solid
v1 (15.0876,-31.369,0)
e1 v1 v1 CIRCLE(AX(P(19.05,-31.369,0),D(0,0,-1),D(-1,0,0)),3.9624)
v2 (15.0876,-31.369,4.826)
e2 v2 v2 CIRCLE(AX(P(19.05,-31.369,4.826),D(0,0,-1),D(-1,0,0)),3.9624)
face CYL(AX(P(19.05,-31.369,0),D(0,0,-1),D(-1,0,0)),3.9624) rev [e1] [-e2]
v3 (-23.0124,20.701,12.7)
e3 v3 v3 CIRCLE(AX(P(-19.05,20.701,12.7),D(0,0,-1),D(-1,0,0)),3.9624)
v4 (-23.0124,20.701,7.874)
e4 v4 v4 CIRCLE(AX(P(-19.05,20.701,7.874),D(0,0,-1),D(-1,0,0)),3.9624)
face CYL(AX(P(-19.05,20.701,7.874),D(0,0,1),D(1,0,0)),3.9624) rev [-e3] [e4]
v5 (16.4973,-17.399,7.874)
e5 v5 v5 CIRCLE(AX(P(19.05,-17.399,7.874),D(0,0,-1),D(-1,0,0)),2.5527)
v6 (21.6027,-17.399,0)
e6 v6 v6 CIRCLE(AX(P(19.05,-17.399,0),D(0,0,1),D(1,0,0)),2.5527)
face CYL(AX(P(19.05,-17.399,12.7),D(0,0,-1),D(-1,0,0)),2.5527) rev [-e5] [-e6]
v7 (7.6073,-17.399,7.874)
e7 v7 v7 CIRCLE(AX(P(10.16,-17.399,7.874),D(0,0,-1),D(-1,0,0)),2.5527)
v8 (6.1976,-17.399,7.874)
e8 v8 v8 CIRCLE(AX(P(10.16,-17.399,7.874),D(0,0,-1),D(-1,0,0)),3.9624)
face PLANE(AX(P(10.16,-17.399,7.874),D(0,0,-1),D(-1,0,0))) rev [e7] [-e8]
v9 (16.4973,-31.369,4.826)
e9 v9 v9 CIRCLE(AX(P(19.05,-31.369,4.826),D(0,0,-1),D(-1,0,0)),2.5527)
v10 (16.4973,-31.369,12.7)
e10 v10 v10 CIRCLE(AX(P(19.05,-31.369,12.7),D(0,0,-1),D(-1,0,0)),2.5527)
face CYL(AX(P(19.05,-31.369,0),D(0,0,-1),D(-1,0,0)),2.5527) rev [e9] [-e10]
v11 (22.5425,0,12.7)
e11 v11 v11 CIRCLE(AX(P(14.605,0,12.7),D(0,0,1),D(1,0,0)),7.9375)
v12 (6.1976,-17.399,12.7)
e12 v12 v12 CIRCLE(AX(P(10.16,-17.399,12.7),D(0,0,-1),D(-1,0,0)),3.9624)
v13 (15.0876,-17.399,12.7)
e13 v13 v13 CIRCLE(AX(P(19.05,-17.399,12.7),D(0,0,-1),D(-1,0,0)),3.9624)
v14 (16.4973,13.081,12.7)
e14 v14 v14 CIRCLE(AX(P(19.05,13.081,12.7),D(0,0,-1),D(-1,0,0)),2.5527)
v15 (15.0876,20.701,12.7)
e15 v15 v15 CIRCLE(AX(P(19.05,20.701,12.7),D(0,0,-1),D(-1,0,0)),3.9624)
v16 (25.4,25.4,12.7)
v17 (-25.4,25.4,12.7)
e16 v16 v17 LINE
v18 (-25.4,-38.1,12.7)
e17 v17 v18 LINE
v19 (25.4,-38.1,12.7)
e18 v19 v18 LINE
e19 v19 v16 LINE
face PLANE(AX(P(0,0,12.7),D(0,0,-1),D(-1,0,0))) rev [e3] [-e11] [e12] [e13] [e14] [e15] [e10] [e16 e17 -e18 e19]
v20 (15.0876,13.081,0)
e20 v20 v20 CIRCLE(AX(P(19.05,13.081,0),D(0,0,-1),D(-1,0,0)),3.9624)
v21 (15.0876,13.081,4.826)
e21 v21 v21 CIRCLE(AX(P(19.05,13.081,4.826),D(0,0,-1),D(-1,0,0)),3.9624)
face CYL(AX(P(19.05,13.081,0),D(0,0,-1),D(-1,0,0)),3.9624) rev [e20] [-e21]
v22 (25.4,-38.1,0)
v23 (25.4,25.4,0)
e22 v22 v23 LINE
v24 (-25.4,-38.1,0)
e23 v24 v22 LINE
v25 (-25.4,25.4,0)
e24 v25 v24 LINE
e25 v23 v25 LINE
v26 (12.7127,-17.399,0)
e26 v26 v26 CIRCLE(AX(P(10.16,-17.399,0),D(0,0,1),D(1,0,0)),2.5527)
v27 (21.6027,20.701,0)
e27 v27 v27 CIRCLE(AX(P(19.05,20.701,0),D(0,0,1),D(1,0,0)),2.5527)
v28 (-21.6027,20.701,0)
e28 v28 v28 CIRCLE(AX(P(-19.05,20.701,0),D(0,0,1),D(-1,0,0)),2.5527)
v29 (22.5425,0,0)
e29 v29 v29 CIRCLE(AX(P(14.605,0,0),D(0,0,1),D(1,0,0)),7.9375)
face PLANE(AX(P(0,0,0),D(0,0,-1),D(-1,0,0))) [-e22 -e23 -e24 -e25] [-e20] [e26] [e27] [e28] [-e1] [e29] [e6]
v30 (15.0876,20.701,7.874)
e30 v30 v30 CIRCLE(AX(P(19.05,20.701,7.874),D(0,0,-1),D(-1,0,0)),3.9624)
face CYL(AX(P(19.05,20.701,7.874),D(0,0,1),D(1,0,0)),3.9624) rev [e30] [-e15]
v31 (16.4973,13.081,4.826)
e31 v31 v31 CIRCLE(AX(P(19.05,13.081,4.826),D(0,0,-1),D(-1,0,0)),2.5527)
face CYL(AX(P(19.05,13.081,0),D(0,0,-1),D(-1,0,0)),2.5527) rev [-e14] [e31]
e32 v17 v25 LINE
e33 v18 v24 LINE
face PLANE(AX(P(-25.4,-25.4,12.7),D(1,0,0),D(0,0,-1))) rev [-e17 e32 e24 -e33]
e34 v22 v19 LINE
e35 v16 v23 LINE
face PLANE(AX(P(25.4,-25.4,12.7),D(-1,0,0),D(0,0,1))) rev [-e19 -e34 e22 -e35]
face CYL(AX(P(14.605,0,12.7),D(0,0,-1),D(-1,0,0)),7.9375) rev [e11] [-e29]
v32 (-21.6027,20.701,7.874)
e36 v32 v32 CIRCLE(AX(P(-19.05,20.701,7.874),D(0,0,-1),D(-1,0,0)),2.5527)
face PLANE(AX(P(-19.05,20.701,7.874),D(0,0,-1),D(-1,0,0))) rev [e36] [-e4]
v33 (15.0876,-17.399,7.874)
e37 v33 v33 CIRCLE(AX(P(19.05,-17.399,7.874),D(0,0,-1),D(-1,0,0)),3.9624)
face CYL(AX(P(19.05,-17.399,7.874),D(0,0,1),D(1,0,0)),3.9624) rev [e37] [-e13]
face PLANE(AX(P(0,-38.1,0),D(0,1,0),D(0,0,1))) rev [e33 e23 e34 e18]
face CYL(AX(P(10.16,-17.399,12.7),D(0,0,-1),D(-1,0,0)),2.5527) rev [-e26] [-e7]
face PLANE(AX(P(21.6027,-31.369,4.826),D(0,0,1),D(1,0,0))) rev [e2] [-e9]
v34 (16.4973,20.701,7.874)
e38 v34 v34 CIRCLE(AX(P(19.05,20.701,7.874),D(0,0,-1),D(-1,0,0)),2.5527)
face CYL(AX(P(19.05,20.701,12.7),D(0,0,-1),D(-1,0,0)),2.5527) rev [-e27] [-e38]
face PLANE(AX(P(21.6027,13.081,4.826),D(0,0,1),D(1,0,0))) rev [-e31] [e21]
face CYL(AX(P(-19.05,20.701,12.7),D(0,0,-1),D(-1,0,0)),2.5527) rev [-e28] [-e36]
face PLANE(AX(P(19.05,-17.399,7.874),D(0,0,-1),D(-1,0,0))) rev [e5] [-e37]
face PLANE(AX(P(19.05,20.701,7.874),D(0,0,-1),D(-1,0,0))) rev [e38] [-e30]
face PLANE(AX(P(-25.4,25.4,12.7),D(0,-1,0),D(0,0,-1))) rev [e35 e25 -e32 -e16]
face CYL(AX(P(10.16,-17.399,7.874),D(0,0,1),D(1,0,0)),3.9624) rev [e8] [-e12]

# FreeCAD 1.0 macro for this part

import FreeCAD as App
import Part
import Sketcher
Q = App.Units.Quantity


def add_polygon(sketch, points):
    """Adds a closed chain of lines whose ends are joined by coincident constraints."""
    first, n = sketch.GeometryCount, len(points)
    for a, b in zip(points, points[1:] + points[:1]):
        sketch.addGeometry(Part.LineSegment(App.Vector(*a, 0), App.Vector(*b, 0)), False)
    for i in range(n):
        sketch.addConstraint(Sketcher.Constraint("Coincident", first + i, 2, first + (i + 1) % n, 1))

doc = App.newDocument("Part")
body = doc.addObject("PartDesign::Body", "Body")

sketch1 = body.newObject("Sketcher::SketchObject", "Sketch")
sketch1.AttachmentSupport = (doc.getObject("XY_Plane"), [""])
sketch1.MapMode = "FlatFace"
add_polygon(sketch1, [(-25.4, 25.4), (-25.4, -25.4), (25.4, -25.4), (25.4, 25.4)])
sketch1.addGeometry(Part.Circle(App.Vector(10.2, -17.4, 0), App.Vector(0, 0, 1), 2.6), False)
sketch1.addGeometry(Part.Circle(App.Vector(19.1, -17.4, 0), App.Vector(0, 0, 1), 2.6), False)
sketch1.addGeometry(Part.Circle(App.Vector(14.6, 0, 0), App.Vector(0, 0, 1), 7.9), False)
sketch1.addGeometry(Part.Circle(App.Vector(-19.1, 20.7, 0), App.Vector(0, 0, 1), 2.6), False)
sketch1.addGeometry(Part.Circle(App.Vector(19.1, 20.7, 0), App.Vector(0, 0, 1), 2.6), False)
sketch1.addConstraint([
    Sketcher.Constraint("Vertical", 0),
    Sketcher.Constraint("Horizontal", 1),
    Sketcher.Constraint("Vertical", 2),
    Sketcher.Constraint("Horizontal", 3),
    Sketcher.Constraint("Equal", 4, 5),
    Sketcher.Constraint("Equal", 5, 7),
    Sketcher.Constraint("Equal", 7, 8),
    Sketcher.Constraint("Symmetric", 0, 2, 2, 2, -1, 1),
    Sketcher.Constraint("Symmetric", 7, 3, 8, 3, -2),
    Sketcher.Constraint("PointOnObject", 6, 3, -1),
    Sketcher.Constraint("Horizontal", 4, 3, 5, 3),
    Sketcher.Constraint("Vertical", 5, 3, 8, 3),
    Sketcher.Constraint("Equal", 3, 0),
    Sketcher.Constraint("DistanceX", 1, 1, 1, 2, Q("2 in")),
    Sketcher.Constraint("Diameter", 4, Q("0.201 in")),
    Sketcher.Constraint("Diameter", 6, Q("0.625 in")),
    Sketcher.Constraint("DistanceX", -1, 1, 4, 3, Q("0.4 in")),
    Sketcher.Constraint("DistanceY", 4, 3, 7, 3, Q("1.5 in")),
    Sketcher.Constraint("DistanceX", 7, 3, 5, 3, Q("1.5 in")),
    Sketcher.Constraint("DistanceY", 4, 3, -1, 1, Q("0.685 in")),
    Sketcher.Constraint("DistanceX", -1, 1, 6, 3, Q("0.575 in")),
])
pad1 = body.newObject("PartDesign::Pad", "Pad")
pad1.Profile = sketch1
pad1.Length = Q("0.5 in")

sketch2 = body.newObject("Sketcher::SketchObject", "Sketch001")
sketch2.AttachmentSupport = (doc.getObject("XZ_Plane"), [""])
sketch2.MapMode = "FlatFace"
sketch2.AttachmentOffset = App.Placement(App.Vector(0, 0, 1 * 25.4), App.Rotation())
add_polygon(sketch2, [(-25, 13), (-25, 0), (25, 0), (25, 13)])
sketch2.addConstraint([
    Sketcher.Constraint("Vertical", 0),
    Sketcher.Constraint("Horizontal", 1),
    Sketcher.Constraint("Vertical", 2),
    Sketcher.Constraint("Horizontal", 3),
    Sketcher.Constraint("Symmetric", 0, 2, 1, 2, -1, 1),
    Sketcher.Constraint("DistanceX", 1, 1, 1, 2, Q("2 in")),
    Sketcher.Constraint("DistanceY", 0, 2, 0, 1, Q("0.5 in")),
])
pad2 = body.newObject("PartDesign::Pad", "Pad001")
pad2.Profile = sketch2
pad2.Length = Q("0.5 in")

sketch3 = body.newObject("Sketcher::SketchObject", "Sketch002")
sketch3.AttachmentSupport = (doc.getObject("XY_Plane"), [""])
sketch3.MapMode = "FlatFace"
sketch3.addGeometry([
    Part.Circle(App.Vector(19.1, -31.4, 0), App.Vector(0, 0, 1), 2.6),
    Part.Circle(App.Vector(19.1, 13.1, 0), App.Vector(0, 0, 1), 2.6),
], False)
sketch3.addConstraint([
    Sketcher.Constraint("Equal", 0, 1),
    Sketcher.Constraint("Vertical", 0, 3, 1, 3),
    Sketcher.Constraint("Diameter", 0, Q("0.201 in")),
    Sketcher.Constraint("DistanceX", -1, 1, 0, 3, Q("0.75 in")),
    Sketcher.Constraint("DistanceY", 0, 3, 1, 3, Q("1.75 in")),
    Sketcher.Constraint("DistanceY", 0, 3, -1, 1, Q("1.235 in")),
])
doc.recompute()
hole = body.newObject("PartDesign::Hole", "Hole")
hole.Profile = sketch3
hole.ThreadType = "None"
hole.Diameter = Q("0.201 in")
hole.DepthType = "ThroughAll"
hole.HoleCutType = "Counterbore"
hole.HoleCutDiameter = Q("0.312 in")
hole.HoleCutDepth = Q("0.19 in")
hole.Reversed = True

sketch4 = body.newObject("Sketcher::SketchObject", "Sketch003")
sketch4.AttachmentSupport = (doc.getObject("XY_Plane"), [""])
sketch4.MapMode = "FlatFace"
sketch4.AttachmentOffset = App.Placement(App.Vector(0, 0, 0.5 * 25.4), App.Rotation())
sketch4.addGeometry([
    Part.Circle(App.Vector(19.1, 20.7, 0), App.Vector(0, 0, 1), 4),
    Part.Circle(App.Vector(19.1, -17.4, 0), App.Vector(0, 0, 1), 4),
    Part.Circle(App.Vector(10.2, -17.4, 0), App.Vector(0, 0, 1), 4),
    Part.Circle(App.Vector(-19.1, 20.7, 0), App.Vector(0, 0, 1), 4),
], False)
sketch4.addConstraint([
    Sketcher.Constraint("Equal", 0, 1),
    Sketcher.Constraint("Equal", 1, 2),
    Sketcher.Constraint("Equal", 2, 3),
    Sketcher.Constraint("Symmetric", 0, 3, 3, 3, -2),
    Sketcher.Constraint("Horizontal", 1, 3, 2, 3),
    Sketcher.Constraint("Vertical", 0, 3, 1, 3),
    Sketcher.Constraint("Diameter", 0, Q("0.312 in")),
    Sketcher.Constraint("DistanceX", -1, 1, 2, 3, Q("0.4 in")),
    Sketcher.Constraint("DistanceY", 1, 3, 0, 3, Q("1.5 in")),
    Sketcher.Constraint("DistanceX", 3, 3, 0, 3, Q("1.5 in")),
    Sketcher.Constraint("DistanceY", -1, 1, 0, 3, Q("0.815 in")),
])
pocket1 = body.newObject("PartDesign::Pocket", "Pocket")
pocket1.Profile = sketch4
pocket1.Length = Q("0.19 in")

doc.recompute()
